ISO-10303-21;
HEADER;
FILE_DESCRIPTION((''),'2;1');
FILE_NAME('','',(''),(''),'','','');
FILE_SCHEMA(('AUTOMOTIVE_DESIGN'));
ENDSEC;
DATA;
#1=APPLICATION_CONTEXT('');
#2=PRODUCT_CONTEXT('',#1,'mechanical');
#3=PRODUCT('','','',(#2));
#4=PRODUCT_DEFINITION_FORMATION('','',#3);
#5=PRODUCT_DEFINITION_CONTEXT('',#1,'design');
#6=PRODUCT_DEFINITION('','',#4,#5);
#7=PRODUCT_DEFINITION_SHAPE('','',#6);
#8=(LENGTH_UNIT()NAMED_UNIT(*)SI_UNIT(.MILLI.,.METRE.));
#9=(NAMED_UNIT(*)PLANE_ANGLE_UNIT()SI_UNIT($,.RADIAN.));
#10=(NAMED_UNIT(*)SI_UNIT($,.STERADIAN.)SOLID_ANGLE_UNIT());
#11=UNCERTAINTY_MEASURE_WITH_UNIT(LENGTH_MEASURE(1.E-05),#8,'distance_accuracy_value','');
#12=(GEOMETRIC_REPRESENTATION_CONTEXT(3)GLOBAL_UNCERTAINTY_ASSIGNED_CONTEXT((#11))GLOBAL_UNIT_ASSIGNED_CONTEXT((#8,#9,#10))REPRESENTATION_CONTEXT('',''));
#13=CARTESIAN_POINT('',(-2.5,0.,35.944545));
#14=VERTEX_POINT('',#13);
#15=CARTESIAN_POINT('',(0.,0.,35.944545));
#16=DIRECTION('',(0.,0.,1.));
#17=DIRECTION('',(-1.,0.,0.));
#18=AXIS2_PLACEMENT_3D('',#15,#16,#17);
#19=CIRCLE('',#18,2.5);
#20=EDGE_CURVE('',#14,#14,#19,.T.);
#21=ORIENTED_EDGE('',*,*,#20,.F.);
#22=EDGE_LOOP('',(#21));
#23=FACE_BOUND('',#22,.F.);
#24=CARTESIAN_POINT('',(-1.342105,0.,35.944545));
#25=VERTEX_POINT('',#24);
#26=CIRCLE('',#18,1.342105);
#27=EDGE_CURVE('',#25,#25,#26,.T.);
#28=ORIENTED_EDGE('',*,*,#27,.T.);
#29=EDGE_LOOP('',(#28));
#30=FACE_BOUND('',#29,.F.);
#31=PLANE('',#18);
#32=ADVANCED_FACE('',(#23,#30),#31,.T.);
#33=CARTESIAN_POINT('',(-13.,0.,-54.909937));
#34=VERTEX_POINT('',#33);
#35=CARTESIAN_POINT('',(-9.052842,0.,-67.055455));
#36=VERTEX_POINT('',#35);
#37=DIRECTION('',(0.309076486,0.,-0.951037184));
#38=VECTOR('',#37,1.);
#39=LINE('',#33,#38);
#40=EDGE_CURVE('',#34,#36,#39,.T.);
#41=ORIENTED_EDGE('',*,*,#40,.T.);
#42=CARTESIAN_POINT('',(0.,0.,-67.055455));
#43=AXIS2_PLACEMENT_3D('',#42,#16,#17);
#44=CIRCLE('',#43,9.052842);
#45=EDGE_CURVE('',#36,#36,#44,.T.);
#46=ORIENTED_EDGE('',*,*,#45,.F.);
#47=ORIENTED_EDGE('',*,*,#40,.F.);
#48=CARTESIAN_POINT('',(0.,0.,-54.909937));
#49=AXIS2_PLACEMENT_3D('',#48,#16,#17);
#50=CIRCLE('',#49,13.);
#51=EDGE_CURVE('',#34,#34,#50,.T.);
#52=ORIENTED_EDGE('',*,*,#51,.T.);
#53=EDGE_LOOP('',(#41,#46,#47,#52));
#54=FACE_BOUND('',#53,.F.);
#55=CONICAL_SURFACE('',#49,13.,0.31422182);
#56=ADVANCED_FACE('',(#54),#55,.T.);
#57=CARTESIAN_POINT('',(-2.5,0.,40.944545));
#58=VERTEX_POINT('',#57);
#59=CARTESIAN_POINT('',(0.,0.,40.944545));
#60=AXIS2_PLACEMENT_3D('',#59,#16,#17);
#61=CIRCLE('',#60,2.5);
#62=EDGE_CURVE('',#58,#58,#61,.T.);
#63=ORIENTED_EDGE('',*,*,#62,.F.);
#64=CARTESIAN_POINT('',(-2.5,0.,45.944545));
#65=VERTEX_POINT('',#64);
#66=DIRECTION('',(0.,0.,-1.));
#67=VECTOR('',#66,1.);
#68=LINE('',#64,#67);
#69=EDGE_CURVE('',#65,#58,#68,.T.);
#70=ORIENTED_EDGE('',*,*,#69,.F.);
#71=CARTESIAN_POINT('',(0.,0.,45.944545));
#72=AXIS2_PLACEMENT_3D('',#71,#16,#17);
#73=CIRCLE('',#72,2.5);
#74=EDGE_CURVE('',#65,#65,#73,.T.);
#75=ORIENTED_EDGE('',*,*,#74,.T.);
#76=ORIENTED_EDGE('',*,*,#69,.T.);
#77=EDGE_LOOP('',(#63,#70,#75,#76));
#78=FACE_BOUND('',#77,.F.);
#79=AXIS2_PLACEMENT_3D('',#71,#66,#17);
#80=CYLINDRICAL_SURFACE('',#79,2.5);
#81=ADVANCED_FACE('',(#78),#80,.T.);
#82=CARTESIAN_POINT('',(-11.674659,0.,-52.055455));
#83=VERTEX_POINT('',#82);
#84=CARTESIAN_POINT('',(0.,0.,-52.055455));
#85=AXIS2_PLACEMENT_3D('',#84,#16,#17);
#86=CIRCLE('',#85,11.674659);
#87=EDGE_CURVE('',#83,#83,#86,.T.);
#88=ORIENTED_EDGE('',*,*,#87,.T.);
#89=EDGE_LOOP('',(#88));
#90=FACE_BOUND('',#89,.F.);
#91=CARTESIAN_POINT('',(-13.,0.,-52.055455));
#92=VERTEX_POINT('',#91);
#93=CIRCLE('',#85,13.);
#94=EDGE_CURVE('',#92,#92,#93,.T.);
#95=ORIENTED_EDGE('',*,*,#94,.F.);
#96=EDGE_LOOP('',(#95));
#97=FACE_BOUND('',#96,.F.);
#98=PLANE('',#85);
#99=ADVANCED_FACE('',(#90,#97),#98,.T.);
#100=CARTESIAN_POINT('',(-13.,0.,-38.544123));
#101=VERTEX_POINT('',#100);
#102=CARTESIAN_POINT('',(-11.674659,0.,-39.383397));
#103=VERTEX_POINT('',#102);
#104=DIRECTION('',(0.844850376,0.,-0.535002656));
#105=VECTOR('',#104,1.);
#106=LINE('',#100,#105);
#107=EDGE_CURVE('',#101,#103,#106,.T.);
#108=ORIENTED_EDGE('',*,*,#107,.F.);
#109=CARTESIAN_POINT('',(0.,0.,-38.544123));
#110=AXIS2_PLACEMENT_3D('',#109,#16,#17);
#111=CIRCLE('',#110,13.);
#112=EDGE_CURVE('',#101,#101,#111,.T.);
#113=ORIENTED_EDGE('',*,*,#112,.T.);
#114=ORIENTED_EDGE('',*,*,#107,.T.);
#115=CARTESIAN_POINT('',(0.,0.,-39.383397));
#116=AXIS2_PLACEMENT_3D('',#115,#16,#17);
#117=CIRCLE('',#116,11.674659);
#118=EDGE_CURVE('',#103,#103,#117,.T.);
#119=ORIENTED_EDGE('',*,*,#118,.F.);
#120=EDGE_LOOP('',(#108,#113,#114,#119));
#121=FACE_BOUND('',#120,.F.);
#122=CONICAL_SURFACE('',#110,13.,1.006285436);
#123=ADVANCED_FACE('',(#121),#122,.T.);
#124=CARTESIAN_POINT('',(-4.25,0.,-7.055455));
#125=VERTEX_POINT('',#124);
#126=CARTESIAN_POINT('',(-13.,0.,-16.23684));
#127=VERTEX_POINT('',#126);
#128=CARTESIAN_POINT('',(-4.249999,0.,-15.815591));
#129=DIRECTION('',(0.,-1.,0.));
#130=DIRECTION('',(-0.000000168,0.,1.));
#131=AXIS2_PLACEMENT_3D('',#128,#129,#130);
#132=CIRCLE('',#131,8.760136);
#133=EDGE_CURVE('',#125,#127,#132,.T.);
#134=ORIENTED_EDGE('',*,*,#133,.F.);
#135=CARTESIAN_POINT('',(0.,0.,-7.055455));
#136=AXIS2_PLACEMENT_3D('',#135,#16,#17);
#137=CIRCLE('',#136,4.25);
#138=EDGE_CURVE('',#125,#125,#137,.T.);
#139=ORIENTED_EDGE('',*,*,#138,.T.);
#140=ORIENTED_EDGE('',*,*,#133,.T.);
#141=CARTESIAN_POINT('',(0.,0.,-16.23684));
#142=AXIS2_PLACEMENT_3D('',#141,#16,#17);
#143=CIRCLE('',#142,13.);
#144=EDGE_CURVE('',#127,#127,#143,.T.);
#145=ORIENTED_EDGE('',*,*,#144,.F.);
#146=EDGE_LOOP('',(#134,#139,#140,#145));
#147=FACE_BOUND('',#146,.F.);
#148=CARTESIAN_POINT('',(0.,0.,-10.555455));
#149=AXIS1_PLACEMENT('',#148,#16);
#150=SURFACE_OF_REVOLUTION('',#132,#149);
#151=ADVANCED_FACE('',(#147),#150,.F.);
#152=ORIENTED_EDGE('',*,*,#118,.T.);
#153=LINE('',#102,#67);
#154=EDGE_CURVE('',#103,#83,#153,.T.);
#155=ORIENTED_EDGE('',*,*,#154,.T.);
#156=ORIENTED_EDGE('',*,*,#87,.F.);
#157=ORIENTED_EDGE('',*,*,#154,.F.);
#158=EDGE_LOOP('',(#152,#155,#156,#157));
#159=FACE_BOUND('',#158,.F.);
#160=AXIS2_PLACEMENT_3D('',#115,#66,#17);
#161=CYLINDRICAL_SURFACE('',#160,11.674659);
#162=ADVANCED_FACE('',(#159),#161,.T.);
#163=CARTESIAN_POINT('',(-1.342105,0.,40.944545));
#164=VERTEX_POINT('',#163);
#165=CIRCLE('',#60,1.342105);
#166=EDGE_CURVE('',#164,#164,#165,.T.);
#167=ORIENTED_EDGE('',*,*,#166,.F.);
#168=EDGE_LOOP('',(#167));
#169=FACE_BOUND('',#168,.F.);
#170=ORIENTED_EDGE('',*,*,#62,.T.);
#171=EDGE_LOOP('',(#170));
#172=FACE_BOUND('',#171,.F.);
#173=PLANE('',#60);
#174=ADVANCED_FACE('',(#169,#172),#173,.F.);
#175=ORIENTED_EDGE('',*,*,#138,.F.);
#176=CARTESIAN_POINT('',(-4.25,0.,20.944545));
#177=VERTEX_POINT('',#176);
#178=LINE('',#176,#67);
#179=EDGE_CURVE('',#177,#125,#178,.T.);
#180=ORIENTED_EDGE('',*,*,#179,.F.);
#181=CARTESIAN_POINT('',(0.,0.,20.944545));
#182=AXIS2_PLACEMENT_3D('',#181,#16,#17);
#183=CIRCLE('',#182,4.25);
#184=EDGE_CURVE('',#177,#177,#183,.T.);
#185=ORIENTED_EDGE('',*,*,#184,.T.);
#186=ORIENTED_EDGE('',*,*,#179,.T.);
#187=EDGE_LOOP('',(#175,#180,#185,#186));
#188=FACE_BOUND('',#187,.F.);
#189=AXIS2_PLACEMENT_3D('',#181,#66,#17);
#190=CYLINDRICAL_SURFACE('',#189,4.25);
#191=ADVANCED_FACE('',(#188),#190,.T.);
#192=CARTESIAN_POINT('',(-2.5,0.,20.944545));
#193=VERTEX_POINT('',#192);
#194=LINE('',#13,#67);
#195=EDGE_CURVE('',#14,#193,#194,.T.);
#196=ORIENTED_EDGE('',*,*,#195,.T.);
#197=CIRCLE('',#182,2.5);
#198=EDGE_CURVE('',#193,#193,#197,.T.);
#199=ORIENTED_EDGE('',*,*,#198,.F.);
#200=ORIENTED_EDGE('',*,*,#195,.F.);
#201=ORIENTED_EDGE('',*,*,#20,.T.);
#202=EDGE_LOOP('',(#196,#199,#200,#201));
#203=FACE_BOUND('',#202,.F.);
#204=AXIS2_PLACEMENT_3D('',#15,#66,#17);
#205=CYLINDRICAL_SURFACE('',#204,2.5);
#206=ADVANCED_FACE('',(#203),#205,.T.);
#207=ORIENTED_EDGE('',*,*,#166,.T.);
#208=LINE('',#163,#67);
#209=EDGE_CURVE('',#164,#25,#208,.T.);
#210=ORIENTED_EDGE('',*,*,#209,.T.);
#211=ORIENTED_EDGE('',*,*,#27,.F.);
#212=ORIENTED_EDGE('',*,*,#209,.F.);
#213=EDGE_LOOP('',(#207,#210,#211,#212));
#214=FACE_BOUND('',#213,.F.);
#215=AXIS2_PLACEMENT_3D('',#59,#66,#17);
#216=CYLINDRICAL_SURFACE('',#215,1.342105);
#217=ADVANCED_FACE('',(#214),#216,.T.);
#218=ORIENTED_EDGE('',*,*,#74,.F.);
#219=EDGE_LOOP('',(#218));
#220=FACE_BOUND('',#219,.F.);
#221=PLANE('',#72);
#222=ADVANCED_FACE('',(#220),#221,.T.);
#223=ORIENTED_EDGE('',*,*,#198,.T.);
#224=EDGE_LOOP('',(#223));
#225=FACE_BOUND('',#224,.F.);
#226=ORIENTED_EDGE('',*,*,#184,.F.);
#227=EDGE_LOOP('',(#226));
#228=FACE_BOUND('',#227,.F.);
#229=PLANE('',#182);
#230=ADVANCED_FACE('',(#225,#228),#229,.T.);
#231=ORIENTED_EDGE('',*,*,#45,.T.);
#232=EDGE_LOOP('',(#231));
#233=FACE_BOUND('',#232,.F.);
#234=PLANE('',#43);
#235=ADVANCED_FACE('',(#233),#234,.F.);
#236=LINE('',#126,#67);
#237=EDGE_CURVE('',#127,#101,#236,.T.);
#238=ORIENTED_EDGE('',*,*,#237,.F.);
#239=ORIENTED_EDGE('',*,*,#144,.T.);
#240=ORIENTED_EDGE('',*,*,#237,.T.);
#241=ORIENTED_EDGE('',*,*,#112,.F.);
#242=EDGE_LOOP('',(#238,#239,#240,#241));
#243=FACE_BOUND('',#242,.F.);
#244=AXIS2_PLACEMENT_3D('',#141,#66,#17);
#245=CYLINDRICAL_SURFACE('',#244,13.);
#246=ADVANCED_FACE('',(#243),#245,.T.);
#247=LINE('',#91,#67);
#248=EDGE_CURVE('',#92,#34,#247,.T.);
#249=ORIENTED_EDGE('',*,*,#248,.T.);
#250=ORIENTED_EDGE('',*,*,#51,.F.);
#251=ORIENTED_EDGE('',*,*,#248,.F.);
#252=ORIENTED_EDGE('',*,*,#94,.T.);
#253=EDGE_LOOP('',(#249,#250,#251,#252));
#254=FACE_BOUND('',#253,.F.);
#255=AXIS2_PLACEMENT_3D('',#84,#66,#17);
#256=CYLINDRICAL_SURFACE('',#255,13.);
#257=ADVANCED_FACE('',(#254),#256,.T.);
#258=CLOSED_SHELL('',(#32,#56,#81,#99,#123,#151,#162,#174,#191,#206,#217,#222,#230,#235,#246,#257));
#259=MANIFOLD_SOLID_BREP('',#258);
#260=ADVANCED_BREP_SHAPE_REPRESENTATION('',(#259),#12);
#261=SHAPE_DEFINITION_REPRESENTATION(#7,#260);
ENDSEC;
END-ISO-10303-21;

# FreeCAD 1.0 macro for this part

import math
import FreeCAD as App
import Part
import Sketcher

doc = App.newDocument("Part")
body = doc.addObject("PartDesign::Body", "Body")

# Sketch on XZ plane
sketch1 = body.newObject("Sketcher::SketchObject", "Sketch")
sketch1.AttachmentSupport = (doc.getObject("XZ_Plane"), [""])
sketch1.MapMode = "FlatFace"
sketch1.addGeometry(Part.LineSegment(App.Vector(0, -67.055455, 0), App.Vector(0, 45.944545, 0)), False)
sketch1.addGeometry(Part.LineSegment(App.Vector(0, 45.944545, 0), App.Vector(-2.5, 45.944545, 0)), False)
sketch1.addGeometry(Part.LineSegment(App.Vector(-2.5, 45.944545, 0), App.Vector(-2.5, 40.944545, 0)), False)
sketch1.addGeometry(Part.LineSegment(App.Vector(-2.5, 40.944545, 0), App.Vector(-1.342105, 40.944545, 0)), False)
sketch1.addGeometry(Part.LineSegment(App.Vector(-1.342105, 40.944545, 0), App.Vector(-1.342105, 35.944545, 0)), False)
sketch1.addGeometry(Part.LineSegment(App.Vector(-1.342105, 35.944545, 0), App.Vector(-2.5, 35.944545, 0)), False)
sketch1.addGeometry(Part.LineSegment(App.Vector(-2.5, 35.944545, 0), App.Vector(-2.5, 20.944545, 0)), False)
sketch1.addGeometry(Part.LineSegment(App.Vector(-2.5, 20.944545, 0), App.Vector(-4.25, 20.944545, 0)), False)
sketch1.addGeometry(Part.LineSegment(App.Vector(-4.25, 20.944545, 0), App.Vector(-4.25, -7.055455, 0)), False)
sketch1.addGeometry(Part.ArcOfCircle(Part.Circle(App.Vector(-4.249999, -15.815591, 0), App.Vector(0, 0, 1), 8.760136), math.radians(90.00001), math.radians(182.75625)), False)
sketch1.addGeometry(Part.LineSegment(App.Vector(-13, -16.23684, 0), App.Vector(-13, -38.544123, 0)), False)
sketch1.addGeometry(Part.LineSegment(App.Vector(-13, -38.544123, 0), App.Vector(-11.674659, -39.383397, 0)), False)
sketch1.addGeometry(Part.LineSegment(App.Vector(-11.674659, -39.383397, 0), App.Vector(-11.674659, -52.055455, 0)), False)
sketch1.addGeometry(Part.LineSegment(App.Vector(-11.674659, -52.055455, 0), App.Vector(-13, -52.055455, 0)), False)
sketch1.addGeometry(Part.LineSegment(App.Vector(-13, -52.055455, 0), App.Vector(-13, -54.909937, 0)), False)
sketch1.addGeometry(Part.LineSegment(App.Vector(-13, -54.909937, 0), App.Vector(-9.052842, -67.055455, 0)), False)
sketch1.addGeometry(Part.LineSegment(App.Vector(-9.052842, -67.055455, 0), App.Vector(0, -67.055455, 0)), False)
sketch1.addConstraint(Sketcher.Constraint("Coincident", 0, 2, 1, 1))
sketch1.addConstraint(Sketcher.Constraint("Coincident", 1, 2, 2, 1))
sketch1.addConstraint(Sketcher.Constraint("Coincident", 2, 2, 3, 1))
sketch1.addConstraint(Sketcher.Constraint("Coincident", 3, 2, 4, 1))
sketch1.addConstraint(Sketcher.Constraint("Coincident", 4, 2, 5, 1))
sketch1.addConstraint(Sketcher.Constraint("Coincident", 5, 2, 6, 1))
sketch1.addConstraint(Sketcher.Constraint("Coincident", 6, 2, 7, 1))
sketch1.addConstraint(Sketcher.Constraint("Coincident", 7, 2, 8, 1))
sketch1.addConstraint(Sketcher.Constraint("Coincident", 8, 2, 9, 1))
sketch1.addConstraint(Sketcher.Constraint("Coincident", 9, 2, 10, 1))
sketch1.addConstraint(Sketcher.Constraint("Coincident", 10, 2, 11, 1))
sketch1.addConstraint(Sketcher.Constraint("Coincident", 11, 2, 12, 1))
sketch1.addConstraint(Sketcher.Constraint("Coincident", 12, 2, 13, 1))
sketch1.addConstraint(Sketcher.Constraint("Coincident", 13, 2, 14, 1))
sketch1.addConstraint(Sketcher.Constraint("Coincident", 14, 2, 15, 1))
sketch1.addConstraint(Sketcher.Constraint("Coincident", 15, 2, 16, 1))
sketch1.addConstraint(Sketcher.Constraint("Coincident", 16, 2, 0, 1))
sketch1.addConstraint(Sketcher.Constraint("Vertical", 0))
sketch1.addConstraint(Sketcher.Constraint("Horizontal", 1))
sketch1.addConstraint(Sketcher.Constraint("Vertical", 2))
sketch1.addConstraint(Sketcher.Constraint("Horizontal", 3))
sketch1.addConstraint(Sketcher.Constraint("Vertical", 4))
sketch1.addConstraint(Sketcher.Constraint("Horizontal", 5))
sketch1.addConstraint(Sketcher.Constraint("Vertical", 6))
sketch1.addConstraint(Sketcher.Constraint("Horizontal", 7))
sketch1.addConstraint(Sketcher.Constraint("Vertical", 8))
sketch1.addConstraint(Sketcher.Constraint("Vertical", 10))
sketch1.addConstraint(Sketcher.Constraint("Vertical", 12))
sketch1.addConstraint(Sketcher.Constraint("Horizontal", 13))
sketch1.addConstraint(Sketcher.Constraint("Vertical", 14))
sketch1.addConstraint(Sketcher.Constraint("Horizontal", 16))
sketch1.addConstraint(Sketcher.Constraint("PointOnObject", 0, 2, -2))
sketch1.addConstraint(Sketcher.Constraint("DistanceY", 0, 1, 0, 2, 113.0))
sketch1.addConstraint(Sketcher.Constraint("DistanceY", 2, 2, 2, 1, 5.0))
sketch1.addConstraint(Sketcher.Constraint("DistanceY", 4, 2, 4, 1, 5.0))
sketch1.addConstraint(Sketcher.Constraint("DistanceY", 6, 2, 6, 1, 15.0))
sketch1.addConstraint(Sketcher.Constraint("DistanceY", 8, 2, 8, 1, 28.0))
sketch1.addConstraint(Sketcher.Constraint("DistanceX", 1, 2, 1, 1, 2.5))
sketch1.addConstraint(Sketcher.Constraint("DistanceX", 9, 2, -1, 1, 13.0))
sketch1.addConstraint(Sketcher.Constraint("DistanceX", 13, 2, -1, 1, 13.0))
sketch1.addConstraint(Sketcher.Constraint("DistanceY", 12, 2, 8, 2, 45.0))
sketch1.addConstraint(Sketcher.Constraint("DistanceX", 7, 2, 7, 1, 1.75))
sketch1.addConstraint(Sketcher.Constraint("DistanceX", 5, 2, -1, 1, 2.5))
sketch1.addConstraint(Sketcher.Constraint("DistanceX", 9, 3, -1, 1, 4.249999))
sketch1.addConstraint(Sketcher.Constraint("Radius", 9, 8.760136))
sketch1.addConstraint(Sketcher.Constraint("DistanceX", 13, 2, 13, 1, 1.325341))
sketch1.addConstraint(Sketcher.Constraint("DistanceY", 14, 2, 14, 1, 2.854482))
sketch1.addConstraint(Sketcher.Constraint("Distance", 11, 1.568729))
sketch1.addConstraint(Sketcher.Constraint("DistanceX", 3, 1, 3, 2, 1.157895))
sketch1.addConstraint(Sketcher.Constraint("DistanceX", 16, 1, 16, 2, 9.052842))
sketch1.addConstraint(Sketcher.Constraint("DistanceY", 10, 2, 10, 1, 22.307283))
sketch1.addConstraint(Sketcher.Constraint("DistanceY", 9, 3, -1, 1, 15.815591))
revolution = body.newObject("PartDesign::Revolution", "Revolution")
revolution.Profile = sketch1
revolution.ReferenceAxis = (sketch1, ["V_Axis"])
revolution.Angle = 360

doc.recompute()
